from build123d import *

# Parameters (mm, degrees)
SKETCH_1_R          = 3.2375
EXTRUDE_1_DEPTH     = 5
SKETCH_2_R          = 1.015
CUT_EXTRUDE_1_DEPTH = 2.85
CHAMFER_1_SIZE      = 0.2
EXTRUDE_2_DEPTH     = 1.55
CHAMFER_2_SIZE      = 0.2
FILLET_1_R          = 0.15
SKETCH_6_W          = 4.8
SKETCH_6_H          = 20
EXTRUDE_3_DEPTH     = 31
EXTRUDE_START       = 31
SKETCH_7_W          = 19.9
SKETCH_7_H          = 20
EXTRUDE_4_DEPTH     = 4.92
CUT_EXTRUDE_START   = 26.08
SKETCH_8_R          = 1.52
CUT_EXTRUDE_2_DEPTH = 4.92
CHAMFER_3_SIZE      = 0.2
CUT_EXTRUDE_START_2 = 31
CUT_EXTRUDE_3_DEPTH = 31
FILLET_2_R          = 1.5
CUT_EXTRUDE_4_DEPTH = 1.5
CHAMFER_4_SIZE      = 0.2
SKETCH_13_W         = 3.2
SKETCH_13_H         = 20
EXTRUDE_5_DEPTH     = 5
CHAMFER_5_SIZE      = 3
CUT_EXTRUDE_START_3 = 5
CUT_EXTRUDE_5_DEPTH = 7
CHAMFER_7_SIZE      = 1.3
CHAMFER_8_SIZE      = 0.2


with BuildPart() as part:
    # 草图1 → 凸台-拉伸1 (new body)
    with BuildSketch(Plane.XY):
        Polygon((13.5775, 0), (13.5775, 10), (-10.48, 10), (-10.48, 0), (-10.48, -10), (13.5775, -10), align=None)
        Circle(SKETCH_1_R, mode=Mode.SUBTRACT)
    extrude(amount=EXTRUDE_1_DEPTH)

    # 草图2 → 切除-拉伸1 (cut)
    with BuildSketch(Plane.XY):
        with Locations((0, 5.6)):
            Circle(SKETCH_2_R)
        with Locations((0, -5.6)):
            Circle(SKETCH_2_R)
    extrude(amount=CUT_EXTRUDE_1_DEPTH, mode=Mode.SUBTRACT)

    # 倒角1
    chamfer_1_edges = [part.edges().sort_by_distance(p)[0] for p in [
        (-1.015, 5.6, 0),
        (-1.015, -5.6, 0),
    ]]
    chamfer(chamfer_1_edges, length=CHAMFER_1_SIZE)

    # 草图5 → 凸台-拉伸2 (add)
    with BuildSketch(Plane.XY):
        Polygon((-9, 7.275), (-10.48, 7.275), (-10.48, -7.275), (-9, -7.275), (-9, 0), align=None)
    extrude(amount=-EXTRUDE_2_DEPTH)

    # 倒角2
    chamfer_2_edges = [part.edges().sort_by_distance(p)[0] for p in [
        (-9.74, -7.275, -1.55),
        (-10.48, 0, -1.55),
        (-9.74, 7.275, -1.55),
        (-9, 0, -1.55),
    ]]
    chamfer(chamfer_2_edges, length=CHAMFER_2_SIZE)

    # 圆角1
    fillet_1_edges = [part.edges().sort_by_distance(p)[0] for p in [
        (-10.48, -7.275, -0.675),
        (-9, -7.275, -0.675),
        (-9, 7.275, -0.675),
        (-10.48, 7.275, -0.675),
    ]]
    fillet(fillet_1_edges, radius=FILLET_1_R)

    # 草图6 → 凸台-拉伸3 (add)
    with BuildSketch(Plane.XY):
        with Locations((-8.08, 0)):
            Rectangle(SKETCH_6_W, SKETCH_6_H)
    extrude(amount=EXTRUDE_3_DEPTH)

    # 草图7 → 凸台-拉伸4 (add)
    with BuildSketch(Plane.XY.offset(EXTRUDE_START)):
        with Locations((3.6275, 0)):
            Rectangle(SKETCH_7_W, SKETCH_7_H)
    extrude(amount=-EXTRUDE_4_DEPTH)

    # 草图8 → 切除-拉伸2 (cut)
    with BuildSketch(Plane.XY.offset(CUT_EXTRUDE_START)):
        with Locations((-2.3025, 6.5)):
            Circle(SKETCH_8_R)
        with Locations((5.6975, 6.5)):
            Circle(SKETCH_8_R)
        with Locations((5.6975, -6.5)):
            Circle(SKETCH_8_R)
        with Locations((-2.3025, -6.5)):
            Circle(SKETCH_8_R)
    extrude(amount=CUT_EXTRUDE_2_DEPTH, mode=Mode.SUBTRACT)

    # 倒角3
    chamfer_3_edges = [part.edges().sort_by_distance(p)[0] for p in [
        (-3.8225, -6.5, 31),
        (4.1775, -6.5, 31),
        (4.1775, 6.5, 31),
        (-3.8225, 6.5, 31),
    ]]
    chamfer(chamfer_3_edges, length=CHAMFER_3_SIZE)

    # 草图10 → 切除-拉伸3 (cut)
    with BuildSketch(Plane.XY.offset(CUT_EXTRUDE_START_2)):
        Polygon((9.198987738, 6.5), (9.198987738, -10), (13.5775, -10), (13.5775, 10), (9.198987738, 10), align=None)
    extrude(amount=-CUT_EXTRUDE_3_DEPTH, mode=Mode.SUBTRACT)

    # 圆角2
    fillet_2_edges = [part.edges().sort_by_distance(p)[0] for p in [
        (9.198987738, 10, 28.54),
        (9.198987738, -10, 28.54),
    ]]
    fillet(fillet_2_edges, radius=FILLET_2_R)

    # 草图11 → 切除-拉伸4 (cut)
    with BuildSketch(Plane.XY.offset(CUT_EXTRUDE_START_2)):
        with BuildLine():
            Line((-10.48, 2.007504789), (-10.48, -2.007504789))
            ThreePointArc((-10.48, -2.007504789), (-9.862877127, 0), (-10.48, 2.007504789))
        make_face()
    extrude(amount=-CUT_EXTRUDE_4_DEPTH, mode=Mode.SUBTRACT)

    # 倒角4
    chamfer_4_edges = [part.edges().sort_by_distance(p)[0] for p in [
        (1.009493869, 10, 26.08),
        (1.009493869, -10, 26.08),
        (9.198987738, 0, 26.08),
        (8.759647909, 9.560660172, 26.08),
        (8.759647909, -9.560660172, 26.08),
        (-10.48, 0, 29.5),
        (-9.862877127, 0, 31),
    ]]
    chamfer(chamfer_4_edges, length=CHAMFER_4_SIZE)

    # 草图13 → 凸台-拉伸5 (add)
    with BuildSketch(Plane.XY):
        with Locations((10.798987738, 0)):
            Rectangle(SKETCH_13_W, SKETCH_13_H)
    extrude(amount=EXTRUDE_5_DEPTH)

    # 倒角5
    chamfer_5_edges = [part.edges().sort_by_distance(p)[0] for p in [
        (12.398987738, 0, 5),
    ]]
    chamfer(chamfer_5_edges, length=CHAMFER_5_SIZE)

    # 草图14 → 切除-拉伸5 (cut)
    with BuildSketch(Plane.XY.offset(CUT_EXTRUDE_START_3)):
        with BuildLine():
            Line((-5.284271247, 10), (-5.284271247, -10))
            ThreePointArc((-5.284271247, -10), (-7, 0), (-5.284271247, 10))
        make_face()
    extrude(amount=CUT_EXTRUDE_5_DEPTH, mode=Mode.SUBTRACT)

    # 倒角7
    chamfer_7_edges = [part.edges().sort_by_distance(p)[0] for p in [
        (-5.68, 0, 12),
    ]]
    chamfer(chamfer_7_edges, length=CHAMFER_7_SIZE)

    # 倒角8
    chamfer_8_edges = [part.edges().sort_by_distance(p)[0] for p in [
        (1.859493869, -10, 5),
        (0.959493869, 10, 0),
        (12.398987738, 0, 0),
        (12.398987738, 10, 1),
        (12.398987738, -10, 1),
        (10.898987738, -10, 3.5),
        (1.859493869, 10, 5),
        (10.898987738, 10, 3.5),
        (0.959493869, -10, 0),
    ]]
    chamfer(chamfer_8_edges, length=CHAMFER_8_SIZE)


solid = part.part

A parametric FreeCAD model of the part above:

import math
import FreeCAD as App
import Part
import Sketcher
from FreeCAD import Vector
Q = App.Units.Quantity


def edges_at(feature, points):
    """Names of the edges that pass closest to the given points."""
    edges = feature.Shape.Edges
    near = lambda p: min(range(len(edges)), key=lambda i: edges[i].distToShape(Part.Vertex(*p))[0])
    return sorted({f"Edge{near(p) + 1}" for p in points})


def add_polygon(sketch, points):
    """Adds a closed chain of lines whose ends are joined by coincident constraints."""
    first, n = sketch.GeometryCount, len(points)
    for a, b in zip(points, points[1:] + points[:1]):
        sketch.addGeometry(Part.LineSegment(App.Vector(*a, 0), App.Vector(*b, 0)), False)
    for i in range(n):
        sketch.addConstraint(Sketcher.Constraint("Coincident", first + i, 2, first + (i + 1) % n, 1))

doc = App.newDocument("Part")
body = doc.addObject("PartDesign::Body", "Body")

# Sketch on XY plane
sketch1 = body.newObject("Sketcher::SketchObject", "Sketch")
sketch1.AttachmentSupport = (doc.getObject("XY_Plane"), [""])
sketch1.MapMode = "FlatFace"
add_polygon(sketch1, [(13.5775, 10), (-10.48, 10), (-10.48, -10), (13.5775, -10)])  # lines 0-3
sketch1.addGeometry(Part.Circle(Vector(0, 0, 0), Vector(0, 0, 1), 3.2375), False)  # 4
sketch1.addConstraint([
    Sketcher.Constraint("Horizontal", 0),
    Sketcher.Constraint("Vertical", 1),
    Sketcher.Constraint("Horizontal", 2),
    Sketcher.Constraint("Vertical", 3),
    Sketcher.Constraint("Coincident", 4, 3, -1, 1),
    Sketcher.Constraint("DistanceY", 1, 2, 1, 1, Q("20 mm")),
    Sketcher.Constraint("Diameter", 4, Q("6.475 mm")),
    Sketcher.Constraint("DistanceY", -1, 1, 0, 2, Q("10 mm")),
    Sketcher.Constraint("DistanceX", 0, 2, -1, 1, Q("10.48 mm")),
    Sketcher.Constraint("DistanceX", 0, 2, 0, 1, Q("24.0575 mm")),
])
pad1 = body.newObject("PartDesign::Pad", "Pad")
pad1.Profile = sketch1
pad1.Length = 5

# Sketch on XY plane
sketch2 = body.newObject("Sketcher::SketchObject", "Sketch001")
sketch2.AttachmentSupport = (doc.getObject("XY_Plane"), [""])
sketch2.MapMode = "FlatFace"
sketch2.addGeometry([
    Part.Circle(Vector(0, 5.6, 0), Vector(0, 0, 1), 1.015),
    Part.Circle(Vector(0, -5.6, 0), Vector(0, 0, 1), 1.015),
], False)
sketch2.addConstraint([
    Sketcher.Constraint("Equal", 0, 1),
    Sketcher.Constraint("Symmetric", 0, 3, 1, 3, -1, 1),
    Sketcher.Constraint("PointOnObject", 0, 3, -2),
    Sketcher.Constraint("Diameter", 0, Q("2.03 mm")),
    Sketcher.Constraint("DistanceY", -1, 1, 0, 3, Q("5.6 mm")),
])
pocket1 = body.newObject("PartDesign::Pocket", "Pocket")
pocket1.Profile = sketch2
pocket1.Length = 2.85
pocket1.Reversed = True
doc.recompute()

chamfer = body.newObject("PartDesign::Chamfer", "Chamfer")
chamfer.Base = (pocket1, edges_at(pocket1, [(-1.015, 5.6, 0), (-1.015, -5.6, 0)]))
chamfer.Size = 0.2

# Sketch on XY plane
sketch3 = body.newObject("Sketcher::SketchObject", "Sketch002")
sketch3.AttachmentSupport = (doc.getObject("XY_Plane"), [""])
sketch3.MapMode = "FlatFace"
add_polygon(sketch3, [(-9, 7.275), (-10.48, 7.275), (-10.48, -7.275), (-9, -7.275)])  # lines 0-3
sketch3.addConstraint([
    Sketcher.Constraint("Horizontal", 0),
    Sketcher.Constraint("Vertical", 1),
    Sketcher.Constraint("Horizontal", 2),
    Sketcher.Constraint("Vertical", 3),
    Sketcher.Constraint("DistanceX", 2, 2, -1, 1, Q("9 mm")),
    Sketcher.Constraint("DistanceX", 0, 2, 0, 1, Q("1.48 mm")),
    Sketcher.Constraint("DistanceY", 1, 2, 1, 1, Q("14.55 mm")),
    Sketcher.Constraint("DistanceY", -1, 1, 0, 2, Q("7.275 mm")),
])
pad2 = body.newObject("PartDesign::Pad", "Pad001")
pad2.Profile = sketch3
pad2.Length = 1.55
pad2.Reversed = True
doc.recompute()

chamfer2 = body.newObject("PartDesign::Chamfer", "Chamfer001")
chamfer2.Base = (pad2, edges_at(pad2, [
    (-9.74, -7.275, -1.55),
    (-10.48, 0, -1.55),
    (-9.74, 7.275, -1.55),
    (-9, 0, -1.55),
]))
chamfer2.Size = 0.2
doc.recompute()

fillet = body.newObject("PartDesign::Fillet", "Fillet")
fillet.Base = (chamfer2, edges_at(chamfer2, [
    (-10.48, -7.275, -0.675),
    (-9, -7.275, -0.675),
    (-9, 7.275, -0.675),
    (-10.48, 7.275, -0.675),
]))
fillet.Radius = 0.15

# Sketch on XY plane
sketch4 = body.newObject("Sketcher::SketchObject", "Sketch003")
sketch4.AttachmentSupport = (doc.getObject("XY_Plane"), [""])
sketch4.MapMode = "FlatFace"
add_polygon(sketch4, [(-10.48, 10), (-10.48, -10), (-5.68, -10), (-5.68, 10)])  # lines 0-3
sketch4.addConstraint([
    Sketcher.Constraint("Vertical", 0),
    Sketcher.Constraint("Horizontal", 1),
    Sketcher.Constraint("Vertical", 2),
    Sketcher.Constraint("Horizontal", 3),
    Sketcher.Constraint("DistanceY", 0, 2, 0, 1, Q("20 mm")),
    Sketcher.Constraint("DistanceX", 1, 1, 1, 2, Q("4.8 mm")),
    Sketcher.Constraint("DistanceY", 0, 2, -1, 1, Q("10 mm")),
    Sketcher.Constraint("DistanceX", 0, 2, -1, 1, Q("10.48 mm")),
])
pad3 = body.newObject("PartDesign::Pad", "Pad002")
pad3.Profile = sketch4
pad3.Length = 31

# Sketch on XY plane
sketch5 = body.newObject("Sketcher::SketchObject", "Sketch004")
sketch5.AttachmentSupport = (doc.getObject("XY_Plane"), [""])
sketch5.MapMode = "FlatFace"
sketch5.AttachmentOffset = App.Placement(Vector(0, 0, 31), App.Rotation())
add_polygon(sketch5, [(-6.3225, 10), (-6.3225, -10), (13.5775, -10), (13.5775, 10)])  # lines 0-3
sketch5.addConstraint([
    Sketcher.Constraint("Vertical", 0),
    Sketcher.Constraint("Horizontal", 1),
    Sketcher.Constraint("Vertical", 2),
    Sketcher.Constraint("Horizontal", 3),
    Sketcher.Constraint("DistanceY", 0, 2, 0, 1, Q("20 mm")),
    Sketcher.Constraint("DistanceX", 1, 1, 1, 2, Q("19.9 mm")),
    Sketcher.Constraint("DistanceY", 0, 2, -1, 1, Q("10 mm")),
    Sketcher.Constraint("DistanceX", 0, 2, -1, 1, Q("6.3225 mm")),
])
pad4 = body.newObject("PartDesign::Pad", "Pad003")
pad4.Profile = sketch5
pad4.Length = 4.92
pad4.Reversed = True

# Sketch on XY plane
sketch6 = body.newObject("Sketcher::SketchObject", "Sketch005")
sketch6.AttachmentSupport = (doc.getObject("XY_Plane"), [""])
sketch6.MapMode = "FlatFace"
sketch6.AttachmentOffset = App.Placement(Vector(0, 0, 26.08), App.Rotation())
sketch6.addGeometry([
    Part.Circle(Vector(-2.3025, 6.5, 0), Vector(0, 0, 1), 1.52),
    Part.Circle(Vector(5.6975, 6.5, 0), Vector(0, 0, 1), 1.52),
    Part.Circle(Vector(5.6975, -6.5, 0), Vector(0, 0, 1), 1.52),
    Part.Circle(Vector(-2.3025, -6.5, 0), Vector(0, 0, 1), 1.52),
], False)
sketch6.addConstraint([
    Sketcher.Constraint("Equal", 0, 1),
    Sketcher.Constraint("Equal", 1, 2),
    Sketcher.Constraint("Equal", 2, 3),
    Sketcher.Constraint("Symmetric", 1, 3, 2, 3, -1),
    Sketcher.Constraint("Symmetric", 0, 3, 3, 3, -1),
    Sketcher.Constraint("Horizontal", 0, 3, 1, 3),
    Sketcher.Constraint("Diameter", 0, Q("3.04 mm")),
    Sketcher.Constraint("DistanceX", 0, 3, 1, 3, Q("8 mm")),
    Sketcher.Constraint("DistanceY", 2, 3, 1, 3, Q("13 mm")),
    Sketcher.Constraint("DistanceX", 0, 3, -1, 1, Q("2.3025 mm")),
])
pocket2 = body.newObject("PartDesign::Pocket", "Pocket001")
pocket2.Profile = sketch6
pocket2.Length = 4.92
pocket2.Reversed = True
doc.recompute()

chamfer3 = body.newObject("PartDesign::Chamfer", "Chamfer002")
chamfer3.Base = (pocket2, edges_at(pocket2, [
    (-3.822, -6.5, 31),
    (4.178, -6.5, 31),
    (4.178, 6.5, 31),
    (-3.822, 6.5, 31),
]))
chamfer3.Size = 0.2

# Sketch on XY plane
sketch7 = body.newObject("Sketcher::SketchObject", "Sketch006")
sketch7.AttachmentSupport = (doc.getObject("XY_Plane"), [""])
sketch7.MapMode = "FlatFace"
sketch7.AttachmentOffset = App.Placement(Vector(0, 0, 31), App.Rotation())
add_polygon(sketch7, [(9.198988, -10), (13.5775, -10), (13.5775, 10), (9.198988, 10)])  # lines 0-3
sketch7.addConstraint([
    Sketcher.Constraint("Horizontal", 0),
    Sketcher.Constraint("Vertical", 1),
    Sketcher.Constraint("Horizontal", 2),
    Sketcher.Constraint("Vertical", 3),
    Sketcher.Constraint("DistanceY", 1, 1, 1, 2, Q("20 mm")),
    Sketcher.Constraint("DistanceY", 0, 2, -1, 1, Q("10 mm")),
    Sketcher.Constraint("DistanceX", -1, 1, 0, 2, Q("13.5775 mm")),
    Sketcher.Constraint("DistanceX", 0, 1, 0, 2, Q("4.378512 mm")),
])
pocket3 = body.newObject("PartDesign::Pocket", "Pocket002")
pocket3.Profile = sketch7
pocket3.Length = 31
doc.recompute()

fillet2 = body.newObject("PartDesign::Fillet", "Fillet001")
fillet2.Base = (pocket3, edges_at(pocket3, [(9.199, 10, 28.54), (9.199, -10, 28.54)]))
fillet2.Radius = 1.5

# Sketch on XY plane
sketch8 = body.newObject("Sketcher::SketchObject", "Sketch007")
sketch8.AttachmentSupport = (doc.getObject("XY_Plane"), [""])
sketch8.MapMode = "FlatFace"
sketch8.AttachmentOffset = App.Placement(Vector(0, 0, 31), App.Rotation())
sketch8.addGeometry([
    Part.LineSegment(Vector(-10.48, 2.007505, 0), Vector(-10.48, -2.007505, 0)),
    Part.ArcOfCircle(Part.Circle(Vector(-13.436652, 0, 0), Vector(0, 0, 1), 3.573775), math.radians(-34.175686), math.radians(34.175686)),
], False)
sketch8.addConstraint([
    Sketcher.Constraint("Coincident", 0, 1, 1, 2),
    Sketcher.Constraint("Coincident", 1, 1, 0, 2),
    Sketcher.Constraint("Vertical", 0),
    Sketcher.Constraint("PointOnObject", 1, 3, -1),
    Sketcher.Constraint("DistanceX", 0, 1, -1, 1, Q("10.48 mm")),
    Sketcher.Constraint("Radius", 1, Q("3.573775 mm")),
    Sketcher.Constraint("DistanceY", 0, 2, 0, 1, Q("4.01501 mm")),
])
pocket4 = body.newObject("PartDesign::Pocket", "Pocket003")
pocket4.Profile = sketch8
pocket4.Length = 1.5
doc.recompute()

chamfer4 = body.newObject("PartDesign::Chamfer", "Chamfer003")
chamfer4.Base = (pocket4, edges_at(pocket4, [
    (1.009, 10, 26.08),
    (1.009, -10, 26.08),
    (9.199, 0, 26.08),
    (8.76, 9.561, 26.08),
    (8.76, -9.561, 26.08),
    (-10.48, 0, 29.5),
    (-9.863, 0, 31),
]))
chamfer4.Size = 0.2

# Sketch on XY plane
sketch9 = body.newObject("Sketcher::SketchObject", "Sketch008")
sketch9.AttachmentSupport = (doc.getObject("XY_Plane"), [""])
sketch9.MapMode = "FlatFace"
add_polygon(sketch9, [(9.198988, 10), (9.198988, -10), (12.398988, -10), (12.398988, 10)])  # lines 0-3
sketch9.addConstraint([
    Sketcher.Constraint("Vertical", 0),
    Sketcher.Constraint("Horizontal", 1),
    Sketcher.Constraint("Vertical", 2),
    Sketcher.Constraint("Horizontal", 3),
    Sketcher.Constraint("DistanceY", 0, 2, 0, 1, Q("20 mm")),
    Sketcher.Constraint("DistanceX", 1, 1, 1, 2, Q("3.2 mm")),
    Sketcher.Constraint("DistanceY", 0, 2, -1, 1, Q("10 mm")),
    Sketcher.Constraint("DistanceX", -1, 1, 0, 2, Q("9.198988 mm")),
])
pad5 = body.newObject("PartDesign::Pad", "Pad004")
pad5.Profile = sketch9
pad5.Length = 5
doc.recompute()

chamfer5 = body.newObject("PartDesign::Chamfer", "Chamfer004")
chamfer5.Base = (pad5, edges_at(pad5, [(12.399, 0, 5)]))
chamfer5.Size = 3

# Sketch on XY plane
sketch10 = body.newObject("Sketcher::SketchObject", "Sketch009")
sketch10.AttachmentSupport = (doc.getObject("XY_Plane"), [""])
sketch10.MapMode = "FlatFace"
sketch10.AttachmentOffset = App.Placement(Vector(0, 0, 5), App.Rotation())
sketch10.addGeometry([
    Part.LineSegment(Vector(-5.284271, -10, 0), Vector(-5.284271, 10, 0)),
    Part.ArcOfCircle(Part.Circle(Vector(23, 0, 0), Vector(0, 0, 1), 30), math.radians(160.528779), math.radians(199.471221)),
], False)
sketch10.addConstraint([
    Sketcher.Constraint("Coincident", 0, 1, 1, 2),
    Sketcher.Constraint("Coincident", 1, 1, 0, 2),
    Sketcher.Constraint("Vertical", 0),
    Sketcher.Constraint("PointOnObject", 1, 3, -1),
    Sketcher.Constraint("Radius", 1, Q("30 mm")),
    Sketcher.Constraint("DistanceY", 0, 1, 0, 2, Q("20 mm")),
    Sketcher.Constraint("DistanceX", -1, 1, 1, 3, Q("23 mm")),
])
pocket5 = body.newObject("PartDesign::Pocket", "Pocket004")
pocket5.Profile = sketch10
pocket5.Length = 7
pocket5.Reversed = True
doc.recompute()

chamfer6 = body.newObject("PartDesign::Chamfer", "Chamfer005")
chamfer6.Base = (pocket5, edges_at(pocket5, [(-5.68, 0, 12)]))
chamfer6.Size = 1.3
doc.recompute()

chamfer7 = body.newObject("PartDesign::Chamfer", "Chamfer006")
chamfer7.Base = (chamfer6, edges_at(chamfer6, [
    (1.859, -10, 5),
    (0.959, 10, 0),
    (12.399, 0, 0),
    (12.399, 10, 1),
    (12.399, -10, 1),
    (10.899, -10, 3.5),
    (1.859, 10, 5),
    (10.899, 10, 3.5),
    (0.959, -10, 0),
]))
chamfer7.Size = 0.2

doc.recompute()
